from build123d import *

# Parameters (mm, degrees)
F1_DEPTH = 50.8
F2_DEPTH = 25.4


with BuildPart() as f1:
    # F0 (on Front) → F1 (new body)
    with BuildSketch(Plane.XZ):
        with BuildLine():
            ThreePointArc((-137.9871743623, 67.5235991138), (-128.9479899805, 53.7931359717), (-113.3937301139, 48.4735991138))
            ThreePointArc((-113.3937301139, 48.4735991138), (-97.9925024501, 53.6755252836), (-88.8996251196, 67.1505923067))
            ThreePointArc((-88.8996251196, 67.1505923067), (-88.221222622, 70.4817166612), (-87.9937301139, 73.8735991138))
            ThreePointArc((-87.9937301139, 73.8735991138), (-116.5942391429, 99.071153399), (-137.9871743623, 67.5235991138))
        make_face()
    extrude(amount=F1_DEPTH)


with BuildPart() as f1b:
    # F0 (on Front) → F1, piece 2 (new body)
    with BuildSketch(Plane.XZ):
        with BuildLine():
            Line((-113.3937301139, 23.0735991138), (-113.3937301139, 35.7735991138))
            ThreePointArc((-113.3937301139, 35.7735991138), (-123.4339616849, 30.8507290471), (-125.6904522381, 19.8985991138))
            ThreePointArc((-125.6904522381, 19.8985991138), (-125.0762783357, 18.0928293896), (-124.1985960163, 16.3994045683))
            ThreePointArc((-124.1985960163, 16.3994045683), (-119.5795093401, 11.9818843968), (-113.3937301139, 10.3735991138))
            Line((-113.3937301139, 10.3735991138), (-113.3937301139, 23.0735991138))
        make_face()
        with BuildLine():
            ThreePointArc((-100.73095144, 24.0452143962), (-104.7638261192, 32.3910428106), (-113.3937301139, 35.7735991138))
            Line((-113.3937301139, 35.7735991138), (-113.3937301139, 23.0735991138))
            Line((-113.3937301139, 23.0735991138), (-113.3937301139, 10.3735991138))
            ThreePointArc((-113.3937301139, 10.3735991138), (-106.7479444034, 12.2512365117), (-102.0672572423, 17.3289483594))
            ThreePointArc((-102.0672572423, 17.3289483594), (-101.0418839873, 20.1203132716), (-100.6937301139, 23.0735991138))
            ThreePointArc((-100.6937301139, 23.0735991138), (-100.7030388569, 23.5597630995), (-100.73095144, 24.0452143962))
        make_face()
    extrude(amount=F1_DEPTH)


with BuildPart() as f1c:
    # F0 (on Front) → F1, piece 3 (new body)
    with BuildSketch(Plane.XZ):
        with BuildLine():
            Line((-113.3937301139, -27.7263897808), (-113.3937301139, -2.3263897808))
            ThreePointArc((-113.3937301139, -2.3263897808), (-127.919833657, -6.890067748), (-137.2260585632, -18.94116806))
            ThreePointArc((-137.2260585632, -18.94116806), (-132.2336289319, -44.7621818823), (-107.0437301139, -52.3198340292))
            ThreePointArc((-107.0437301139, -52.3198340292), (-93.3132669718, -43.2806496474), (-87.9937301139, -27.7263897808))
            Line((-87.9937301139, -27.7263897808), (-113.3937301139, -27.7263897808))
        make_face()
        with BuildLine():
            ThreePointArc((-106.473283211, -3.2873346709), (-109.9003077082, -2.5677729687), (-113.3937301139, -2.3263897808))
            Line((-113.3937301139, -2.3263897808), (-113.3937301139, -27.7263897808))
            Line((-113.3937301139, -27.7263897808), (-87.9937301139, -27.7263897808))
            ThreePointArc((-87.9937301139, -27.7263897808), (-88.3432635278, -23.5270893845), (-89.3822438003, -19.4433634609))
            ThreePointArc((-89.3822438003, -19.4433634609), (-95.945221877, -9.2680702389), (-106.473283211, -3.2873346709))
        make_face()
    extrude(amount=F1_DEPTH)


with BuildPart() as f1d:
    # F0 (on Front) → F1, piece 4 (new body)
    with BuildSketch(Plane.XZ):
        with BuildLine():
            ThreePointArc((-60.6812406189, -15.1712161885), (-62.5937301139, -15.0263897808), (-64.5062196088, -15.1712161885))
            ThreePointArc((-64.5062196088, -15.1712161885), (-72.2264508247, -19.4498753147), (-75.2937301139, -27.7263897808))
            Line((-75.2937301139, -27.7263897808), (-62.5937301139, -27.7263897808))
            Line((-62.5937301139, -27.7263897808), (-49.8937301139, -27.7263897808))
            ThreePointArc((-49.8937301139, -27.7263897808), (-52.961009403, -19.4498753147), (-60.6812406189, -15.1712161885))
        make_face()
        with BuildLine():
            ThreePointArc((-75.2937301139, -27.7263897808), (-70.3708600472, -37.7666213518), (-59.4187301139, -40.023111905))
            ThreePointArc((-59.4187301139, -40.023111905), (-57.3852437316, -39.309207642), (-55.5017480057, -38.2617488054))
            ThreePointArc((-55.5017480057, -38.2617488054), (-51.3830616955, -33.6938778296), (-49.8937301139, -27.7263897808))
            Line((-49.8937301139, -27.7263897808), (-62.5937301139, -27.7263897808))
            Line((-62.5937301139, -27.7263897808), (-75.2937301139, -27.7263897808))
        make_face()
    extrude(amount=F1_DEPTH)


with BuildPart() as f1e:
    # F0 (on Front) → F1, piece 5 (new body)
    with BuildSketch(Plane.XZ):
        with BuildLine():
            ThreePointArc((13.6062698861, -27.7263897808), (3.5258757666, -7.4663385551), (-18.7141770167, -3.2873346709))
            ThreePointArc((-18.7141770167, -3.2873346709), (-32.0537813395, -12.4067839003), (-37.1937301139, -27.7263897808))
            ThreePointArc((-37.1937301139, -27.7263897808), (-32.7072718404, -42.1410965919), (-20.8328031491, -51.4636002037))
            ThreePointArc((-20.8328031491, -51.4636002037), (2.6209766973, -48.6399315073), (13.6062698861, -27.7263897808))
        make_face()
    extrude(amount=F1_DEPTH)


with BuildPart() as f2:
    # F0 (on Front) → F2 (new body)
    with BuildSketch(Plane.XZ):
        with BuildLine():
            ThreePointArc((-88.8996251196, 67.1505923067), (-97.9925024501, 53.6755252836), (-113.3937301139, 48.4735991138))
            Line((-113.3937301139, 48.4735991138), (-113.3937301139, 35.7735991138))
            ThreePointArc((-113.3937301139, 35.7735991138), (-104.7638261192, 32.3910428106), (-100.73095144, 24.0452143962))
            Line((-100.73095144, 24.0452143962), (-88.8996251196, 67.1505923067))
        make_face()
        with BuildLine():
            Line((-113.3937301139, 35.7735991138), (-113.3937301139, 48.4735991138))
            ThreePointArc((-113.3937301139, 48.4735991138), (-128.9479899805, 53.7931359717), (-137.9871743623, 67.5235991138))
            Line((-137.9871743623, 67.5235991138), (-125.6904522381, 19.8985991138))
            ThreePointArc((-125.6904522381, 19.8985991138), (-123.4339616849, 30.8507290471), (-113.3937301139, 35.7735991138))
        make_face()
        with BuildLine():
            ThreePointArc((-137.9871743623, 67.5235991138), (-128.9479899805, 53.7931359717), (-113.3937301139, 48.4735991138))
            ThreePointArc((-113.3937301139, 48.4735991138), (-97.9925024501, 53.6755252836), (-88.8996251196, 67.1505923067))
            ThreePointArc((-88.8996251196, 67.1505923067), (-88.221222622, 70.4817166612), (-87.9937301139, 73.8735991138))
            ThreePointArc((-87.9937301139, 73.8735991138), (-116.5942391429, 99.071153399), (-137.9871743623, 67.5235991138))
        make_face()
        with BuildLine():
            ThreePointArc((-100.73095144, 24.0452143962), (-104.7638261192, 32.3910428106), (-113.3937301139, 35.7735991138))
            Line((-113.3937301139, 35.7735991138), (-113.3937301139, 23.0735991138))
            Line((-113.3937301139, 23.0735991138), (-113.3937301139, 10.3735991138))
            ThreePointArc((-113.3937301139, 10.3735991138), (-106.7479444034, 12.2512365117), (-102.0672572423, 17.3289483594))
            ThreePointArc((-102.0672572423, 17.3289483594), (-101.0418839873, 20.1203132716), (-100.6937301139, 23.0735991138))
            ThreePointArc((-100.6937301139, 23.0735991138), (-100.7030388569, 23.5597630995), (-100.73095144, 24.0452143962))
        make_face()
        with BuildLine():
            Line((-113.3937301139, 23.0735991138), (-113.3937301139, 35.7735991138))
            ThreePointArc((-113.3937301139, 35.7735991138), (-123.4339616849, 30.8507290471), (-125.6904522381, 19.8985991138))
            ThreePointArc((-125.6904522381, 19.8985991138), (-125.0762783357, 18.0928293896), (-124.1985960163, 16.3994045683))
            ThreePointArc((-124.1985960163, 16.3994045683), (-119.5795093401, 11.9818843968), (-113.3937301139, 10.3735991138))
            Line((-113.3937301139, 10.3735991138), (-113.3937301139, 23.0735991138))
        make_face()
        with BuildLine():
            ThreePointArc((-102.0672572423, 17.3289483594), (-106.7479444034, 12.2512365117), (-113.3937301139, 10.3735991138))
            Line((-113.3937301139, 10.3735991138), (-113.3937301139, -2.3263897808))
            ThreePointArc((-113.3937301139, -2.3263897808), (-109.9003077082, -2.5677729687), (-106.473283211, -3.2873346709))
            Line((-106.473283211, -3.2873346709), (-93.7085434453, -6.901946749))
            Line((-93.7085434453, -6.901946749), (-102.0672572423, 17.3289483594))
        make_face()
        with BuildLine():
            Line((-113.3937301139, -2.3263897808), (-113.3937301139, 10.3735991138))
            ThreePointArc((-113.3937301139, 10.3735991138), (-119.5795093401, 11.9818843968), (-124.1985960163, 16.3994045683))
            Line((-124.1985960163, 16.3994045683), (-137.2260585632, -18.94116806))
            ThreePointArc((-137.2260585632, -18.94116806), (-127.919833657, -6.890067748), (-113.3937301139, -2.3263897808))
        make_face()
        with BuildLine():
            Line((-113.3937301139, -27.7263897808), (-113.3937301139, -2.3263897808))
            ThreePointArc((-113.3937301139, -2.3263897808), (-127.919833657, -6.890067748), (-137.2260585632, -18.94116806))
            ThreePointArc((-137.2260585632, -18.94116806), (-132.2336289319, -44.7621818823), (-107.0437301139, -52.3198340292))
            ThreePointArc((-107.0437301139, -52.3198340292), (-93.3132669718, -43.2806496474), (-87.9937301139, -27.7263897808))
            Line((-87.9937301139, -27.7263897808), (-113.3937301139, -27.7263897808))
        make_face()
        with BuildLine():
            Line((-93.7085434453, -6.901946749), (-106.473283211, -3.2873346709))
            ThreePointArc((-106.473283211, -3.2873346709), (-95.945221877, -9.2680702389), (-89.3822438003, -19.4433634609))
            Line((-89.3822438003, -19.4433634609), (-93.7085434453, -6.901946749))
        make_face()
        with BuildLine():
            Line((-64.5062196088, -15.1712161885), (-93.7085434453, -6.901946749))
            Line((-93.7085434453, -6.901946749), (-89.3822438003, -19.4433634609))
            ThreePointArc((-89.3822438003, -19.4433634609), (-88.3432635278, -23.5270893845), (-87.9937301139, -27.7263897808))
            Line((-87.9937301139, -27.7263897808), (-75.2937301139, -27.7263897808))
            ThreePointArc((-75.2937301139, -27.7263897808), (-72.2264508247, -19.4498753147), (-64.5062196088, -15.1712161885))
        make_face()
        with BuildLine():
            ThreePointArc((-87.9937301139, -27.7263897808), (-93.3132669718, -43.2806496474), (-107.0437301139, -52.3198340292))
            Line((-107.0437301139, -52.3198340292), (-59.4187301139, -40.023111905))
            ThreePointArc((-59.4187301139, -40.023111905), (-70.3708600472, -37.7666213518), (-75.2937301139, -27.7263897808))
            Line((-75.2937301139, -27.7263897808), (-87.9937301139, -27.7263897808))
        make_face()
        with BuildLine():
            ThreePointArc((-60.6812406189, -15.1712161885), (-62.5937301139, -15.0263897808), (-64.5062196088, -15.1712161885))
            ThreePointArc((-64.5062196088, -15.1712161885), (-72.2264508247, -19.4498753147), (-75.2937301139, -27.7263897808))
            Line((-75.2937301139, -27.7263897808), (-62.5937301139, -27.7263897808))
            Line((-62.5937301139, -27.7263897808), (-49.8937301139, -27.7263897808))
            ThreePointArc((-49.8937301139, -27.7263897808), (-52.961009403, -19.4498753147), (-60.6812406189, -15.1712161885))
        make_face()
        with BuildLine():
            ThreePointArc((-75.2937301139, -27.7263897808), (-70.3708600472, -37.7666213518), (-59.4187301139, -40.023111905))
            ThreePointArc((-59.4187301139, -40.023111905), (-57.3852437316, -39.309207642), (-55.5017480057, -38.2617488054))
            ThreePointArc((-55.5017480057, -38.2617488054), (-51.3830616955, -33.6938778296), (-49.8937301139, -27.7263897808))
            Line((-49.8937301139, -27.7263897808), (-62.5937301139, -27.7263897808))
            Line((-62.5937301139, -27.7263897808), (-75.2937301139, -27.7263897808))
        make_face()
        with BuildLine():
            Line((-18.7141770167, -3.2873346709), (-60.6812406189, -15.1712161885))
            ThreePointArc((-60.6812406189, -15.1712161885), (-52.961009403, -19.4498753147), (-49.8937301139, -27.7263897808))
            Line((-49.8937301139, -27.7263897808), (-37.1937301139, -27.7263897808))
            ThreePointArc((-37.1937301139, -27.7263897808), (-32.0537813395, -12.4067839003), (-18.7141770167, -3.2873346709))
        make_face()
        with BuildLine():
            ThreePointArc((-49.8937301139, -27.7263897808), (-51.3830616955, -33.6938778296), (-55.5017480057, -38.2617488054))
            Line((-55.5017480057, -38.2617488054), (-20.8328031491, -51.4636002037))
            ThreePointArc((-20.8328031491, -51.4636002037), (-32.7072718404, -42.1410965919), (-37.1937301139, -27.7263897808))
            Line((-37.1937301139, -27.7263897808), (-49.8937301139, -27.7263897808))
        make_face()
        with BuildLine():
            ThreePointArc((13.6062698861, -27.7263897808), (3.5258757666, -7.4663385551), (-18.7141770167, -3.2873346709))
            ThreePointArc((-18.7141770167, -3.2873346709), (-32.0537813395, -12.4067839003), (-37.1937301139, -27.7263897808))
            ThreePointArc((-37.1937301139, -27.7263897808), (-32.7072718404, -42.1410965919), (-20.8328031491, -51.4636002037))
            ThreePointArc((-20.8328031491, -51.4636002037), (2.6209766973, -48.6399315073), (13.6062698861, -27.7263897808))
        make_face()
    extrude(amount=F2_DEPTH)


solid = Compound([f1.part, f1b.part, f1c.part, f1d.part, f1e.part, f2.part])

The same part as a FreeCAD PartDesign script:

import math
import FreeCAD as App
import Part
import Sketcher
from FreeCAD import Vector
Q = App.Units.Quantity

doc = App.newDocument("Part")
body = doc.addObject("PartDesign::Body", "Body")

# Sketch on XZ plane
sketch1 = body.newObject("Sketcher::SketchObject", "Sketch")
sketch1.AttachmentSupport = (doc.getObject("XZ_Plane"), [""])
sketch1.MapMode = "FlatFace"
sketch1.addGeometry([
    Part.ArcOfCircle(Part.Circle(Vector(-113.39373, 73.873599, 0), Vector(0, 0, 1), 25.4), math.radians(-90), math.radians(-15.348255)),
    Part.ArcOfCircle(Part.Circle(Vector(-113.39373, 73.873599, 0), Vector(0, 0, 1), 25.4), math.radians(-15.348255), math.radians(0)),
    Part.ArcOfCircle(Part.Circle(Vector(-113.39373, 73.873599, 0), Vector(0, 0, 1), 25.4), math.radians(0), math.radians(270)),
], False)
sketch1.addConstraint([
    Sketcher.Constraint("Tangent", 0, 2, 1, 1),
    Sketcher.Constraint("Tangent", 1, 2, 2, 1),
    Sketcher.Constraint("Tangent", 2, 2, 0, 1),
    Sketcher.Constraint("Horizontal", 2, 3, 1, 2),
    Sketcher.Constraint("Vertical", 1, 3, 2, 2),
    Sketcher.Constraint("Radius", 0, Q("1 in")),
    Sketcher.Constraint("DistanceY", -1, 1, 0, 3, Q("73.873599 mm")),
    Sketcher.Constraint("DistanceX", 0, 3, -1, 1, Q("113.39373 mm")),
    Sketcher.Constraint("DistanceX", 0, 2, -1, 1, Q("88.899625 mm")),
])
pad1 = body.newObject("PartDesign::Pad", "Pad")
pad1.Profile = sketch1
pad1.Length = Q("2 in")
body2 = doc.addObject("PartDesign::Body", "Body001")

# Sketch on XZ plane
sketch2 = body2.newObject("Sketcher::SketchObject", "Sketch001")
sketch2.AttachmentSupport = (doc.getObject("XZ_Plane001"), [""])
sketch2.MapMode = "FlatFace"
sketch2.addGeometry([
    Part.ArcOfCircle(Part.Circle(Vector(-113.39373, 23.073599, 0), Vector(0, 0, 1), 12.7), math.radians(90), math.radians(194.477512)),  # 0
    Part.ArcOfCircle(Part.Circle(Vector(-113.39373, 23.073599, 0), Vector(0, 0, 1), 12.7), math.radians(-165.522488), math.radians(-148.296264)),  # 1
    Part.ArcOfCircle(Part.Circle(Vector(-113.39373, 23.073599, 0), Vector(0, 0, 1), 12.7), math.radians(-148.296264), math.radians(-90)),  # 2
    Part.ArcOfCircle(Part.Circle(Vector(-113.39373, 23.073599, 0), Vector(0, 0, 1), 12.7), math.radians(-90), math.radians(-26.893575)),  # 3
    Part.ArcOfCircle(Part.Circle(Vector(-113.39373, 23.073599, 0), Vector(0, 0, 1), 12.7), math.radians(-26.893575), math.radians(0)),  # 4
    Part.ArcOfCircle(Part.Circle(Vector(-113.39373, 23.073599, 0), Vector(0, 0, 1), 12.7), math.radians(0), math.radians(4.387709)),  # 5
    Part.ArcOfCircle(Part.Circle(Vector(-113.39373, 23.073599, 0), Vector(0, 0, 1), 12.7), math.radians(4.387709), math.radians(90)),  # 6
], False)
sketch2.addConstraint([
    Sketcher.Constraint("Tangent", 0, 2, 1, 1),
    Sketcher.Constraint("Tangent", 1, 2, 2, 1),
    Sketcher.Constraint("Tangent", 2, 2, 3, 1),
    Sketcher.Constraint("Tangent", 3, 2, 4, 1),
    Sketcher.Constraint("Tangent", 4, 2, 5, 1),
    Sketcher.Constraint("Tangent", 5, 2, 6, 1),
    Sketcher.Constraint("Tangent", 6, 2, 0, 1),
    Sketcher.Constraint("Coincident", 2, 3, 0, 3),
    Sketcher.Constraint("Coincident", 4, 3, 0, 3),
    Sketcher.Constraint("Horizontal", 6, 3, 4, 2),
    Sketcher.Constraint("Vertical", 6, 3, 2, 2),
    Sketcher.Constraint("Vertical", 2, 2, 6, 2),
    Sketcher.Constraint("Radius", 0, Q("0.5 in")),
    Sketcher.Constraint("DistanceY", 0, 2, 1, 3, Q("0.125 in")),
    Sketcher.Constraint("DistanceY", -1, 1, 0, 3, Q("23.073599 mm")),
    Sketcher.Constraint("DistanceX", 0, 3, -1, 1, Q("113.39373 mm")),
    Sketcher.Constraint("DistanceY", -1, 1, 3, 2, Q("17.328948 mm")),
    Sketcher.Constraint("DistanceX", 5, 2, -1, 1, Q("100.730951 mm")),
    Sketcher.Constraint("DistanceX", 1, 2, -1, 1, Q("124.198596 mm")),
])
pad2 = body2.newObject("PartDesign::Pad", "Pad001")
pad2.Profile = sketch2
pad2.Length = Q("2 in")
body3 = doc.addObject("PartDesign::Body", "Body002")

# Sketch on XZ plane
sketch3 = body3.newObject("Sketcher::SketchObject", "Sketch002")
sketch3.AttachmentSupport = (doc.getObject("XZ_Plane002"), [""])
sketch3.MapMode = "FlatFace"
sketch3.addGeometry([
    Part.ArcOfCircle(Part.Circle(Vector(-113.39373, -27.72639, 0), Vector(0, 0, 1), 25.4), math.radians(90), math.radians(284.477512)),  # 0
    Part.ArcOfCircle(Part.Circle(Vector(-113.39373, -27.72639, 0), Vector(0, 0, 1), 25.4), math.radians(-75.522488), math.radians(0)),  # 1
    Part.ArcOfCircle(Part.Circle(Vector(-113.39373, -27.72639, 0), Vector(0, 0, 1), 25.4), math.radians(0), math.radians(19.032437)),  # 2
    Part.ArcOfCircle(Part.Circle(Vector(-113.39373, -27.72639, 0), Vector(0, 0, 1), 25.4), math.radians(19.032437), math.radians(74.189383)),  # 3
    Part.ArcOfCircle(Part.Circle(Vector(-113.39373, -27.72639, 0), Vector(0, 0, 1), 25.4), math.radians(74.189383), math.radians(90)),  # 4
], False)
sketch3.addConstraint([
    Sketcher.Constraint("Tangent", 0, 2, 1, 1),
    Sketcher.Constraint("Tangent", 1, 2, 2, 1),
    Sketcher.Constraint("Tangent", 2, 2, 3, 1),
    Sketcher.Constraint("Tangent", 3, 2, 4, 1),
    Sketcher.Constraint("Tangent", 4, 2, 0, 1),
    Sketcher.Constraint("Coincident", 2, 3, 0, 3),
    Sketcher.Constraint("Horizontal", 4, 3, 1, 2),
    Sketcher.Constraint("Vertical", 3, 3, 4, 2),
    Sketcher.Constraint("Radius", 0, Q("1 in")),
    Sketcher.Constraint("DistanceX", 0, 3, 0, 2, Q("0.25 in")),
    Sketcher.Constraint("DistanceX", 0, 3, -1, 1, Q("113.39373 mm")),
    Sketcher.Constraint("DistanceY", 0, 3, -1, 1, Q("27.72639 mm")),
    Sketcher.Constraint("DistanceX", 3, 2, 2, 2, Q("17.091039 mm")),
    Sketcher.Constraint("DistanceY", 2, 2, 3, 2, Q("16.156029 mm")),
])
pad3 = body3.newObject("PartDesign::Pad", "Pad002")
pad3.Profile = sketch3
pad3.Length = Q("2 in")
body4 = doc.addObject("PartDesign::Body", "Body003")

# Sketch on XZ plane
sketch4 = body4.newObject("Sketcher::SketchObject", "Sketch003")
sketch4.AttachmentSupport = (doc.getObject("XZ_Plane003"), [""])
sketch4.MapMode = "FlatFace"
sketch4.addGeometry([
    Part.ArcOfCircle(Part.Circle(Vector(-62.59373, -27.72639, 0), Vector(0, 0, 1), 12.7), math.radians(81.338897), math.radians(98.661103)),  # 0
    Part.ArcOfCircle(Part.Circle(Vector(-62.59373, -27.72639, 0), Vector(0, 0, 1), 12.7), math.radians(98.661103), math.radians(180)),  # 1
    Part.ArcOfCircle(Part.Circle(Vector(-62.59373, -27.72639, 0), Vector(0, 0, 1), 12.7), math.radians(180), math.radians(284.477512)),  # 2
    Part.ArcOfCircle(Part.Circle(Vector(-62.59373, -27.72639, 0), Vector(0, 0, 1), 12.7), math.radians(-75.522488), math.radians(-56.053138)),  # 3
    Part.ArcOfCircle(Part.Circle(Vector(-62.59373, -27.72639, 0), Vector(0, 0, 1), 12.7), math.radians(-56.053138), math.radians(0)),  # 4
    Part.ArcOfCircle(Part.Circle(Vector(-62.59373, -27.72639, 0), Vector(0, 0, 1), 12.7), math.radians(0), math.radians(81.338897)),  # 5
], False)
sketch4.addConstraint([
    Sketcher.Constraint("Tangent", 0, 2, 1, 1),
    Sketcher.Constraint("Tangent", 1, 2, 2, 1),
    Sketcher.Constraint("Tangent", 2, 2, 3, 1),
    Sketcher.Constraint("Tangent", 3, 2, 4, 1),
    Sketcher.Constraint("Tangent", 4, 2, 5, 1),
    Sketcher.Constraint("Tangent", 5, 2, 0, 1),
    Sketcher.Constraint("Coincident", 2, 3, 0, 3),
    Sketcher.Constraint("Equal", 2, 3),
    Sketcher.Constraint("Horizontal", 5, 3, 1, 2),
    Sketcher.Constraint("Horizontal", 1, 2, 4, 2),
    Sketcher.Constraint("Horizontal", 0, 2, 5, 2),
    Sketcher.Constraint("Radius", 0, Q("0.5 in")),
    Sketcher.Constraint("DistanceX", 0, 3, 2, 2, Q("0.125 in")),
    Sketcher.Constraint("DistanceX", 0, 3, -1, 1, Q("62.59373 mm")),
    Sketcher.Constraint("DistanceY", 0, 3, -1, 1, Q("27.72639 mm")),
    Sketcher.Constraint("DistanceX", 0, 2, -1, 1, Q("64.50622 mm")),
    Sketcher.Constraint("DistanceX", 3, 2, -1, 1, Q("55.501748 mm")),
])
pad4 = body4.newObject("PartDesign::Pad", "Pad003")
pad4.Profile = sketch4
pad4.Length = Q("2 in")
body5 = doc.addObject("PartDesign::Body", "Body004")

# Sketch on XZ plane
sketch5 = body5.newObject("Sketcher::SketchObject", "Sketch004")
sketch5.AttachmentSupport = (doc.getObject("XZ_Plane004"), [""])
sketch5.MapMode = "FlatFace"
sketch5.addGeometry([
    Part.ArcOfCircle(Part.Circle(Vector(-11.79373, -27.72639, 0), Vector(0, 0, 1), 25.4), math.radians(0), math.radians(180)),
    Part.ArcOfCircle(Part.Circle(Vector(-11.79373, -27.72639, 0), Vector(0, 0, 1), 25.4), math.radians(180), math.radians(249.153286)),
    Part.ArcOfCircle(Part.Circle(Vector(-11.79373, -27.72639, 0), Vector(0, 0, 1), 25.4), math.radians(-110.846714), math.radians(0)),
], False)
sketch5.addConstraint([
    Sketcher.Constraint("Tangent", 0, 2, 1, 1),
    Sketcher.Constraint("Tangent", 1, 2, 2, 1),
    Sketcher.Constraint("Tangent", 2, 2, 0, 1),
    Sketcher.Constraint("Horizontal", 2, 3, 0, 2),
    Sketcher.Constraint("Horizontal", 0, 2, 2, 2),
    Sketcher.Constraint("Radius", 0, Q("1 in")),
    Sketcher.Constraint("DistanceY", 1, 2, -1, 1, Q("51.4636 mm")),
    Sketcher.Constraint("DistanceX", 0, 3, -1, 1, Q("11.79373 mm")),
    Sketcher.Constraint("DistanceY", 0, 3, -1, 1, Q("27.72639 mm")),
])
pad5 = body5.newObject("PartDesign::Pad", "Pad004")
pad5.Profile = sketch5
pad5.Length = Q("2 in")
body6 = doc.addObject("PartDesign::Body", "Body005")

# Sketch on XZ plane
sketch6 = body6.newObject("Sketcher::SketchObject", "Sketch005")
sketch6.AttachmentSupport = (doc.getObject("XZ_Plane005"), [""])
sketch6.MapMode = "FlatFace"
sketch6.addGeometry([
    Part.ArcOfCircle(Part.Circle(Vector(-113.39373, -27.72639, 0), Vector(0, 0, 1), 25.4), math.radians(159.76479), math.radians(284.477512)),  # 0
    Part.LineSegment(Vector(-107.04373, -52.319834, 0), Vector(-59.41873, -40.023112, 0)),  # 1
    Part.ArcOfCircle(Part.Circle(Vector(-62.59373, -27.72639, 0), Vector(0, 0, 1), 12.7), math.radians(-75.522488), math.radians(-56.053138)),  # 2
    Part.LineSegment(Vector(-55.501748, -38.261749, 0), Vector(-20.832803, -51.4636, 0)),  # 3
    Part.ArcOfCircle(Part.Circle(Vector(-11.79373, -27.72639, 0), Vector(0, 0, 1), 25.4), math.radians(-110.846714), math.radians(0)),  # 4
    Part.ArcOfCircle(Part.Circle(Vector(-11.79373, -27.72639, 0), Vector(0, 0, 1), 25.4), math.radians(0), math.radians(105.810617)),  # 5
    Part.LineSegment(Vector(-18.714177, -3.287335, 0), Vector(-60.681241, -15.171216, 0)),  # 6
    Part.ArcOfCircle(Part.Circle(Vector(-62.59373, -27.72639, 0), Vector(0, 0, 1), 12.7), math.radians(81.338897), math.radians(98.661103)),  # 7
    Part.LineSegment(Vector(-64.50622, -15.171216, 0), Vector(-93.708543, -6.901947, 0)),  # 8
    Part.LineSegment(Vector(-93.708543, -6.901947, 0), Vector(-102.067257, 17.328948, 0)),  # 9
    Part.ArcOfCircle(Part.Circle(Vector(-113.39373, 23.073599, 0), Vector(0, 0, 1), 12.7), math.radians(-26.893575), math.radians(0)),  # 10
    Part.ArcOfCircle(Part.Circle(Vector(-113.39373, 23.073599, 0), Vector(0, 0, 1), 12.7), math.radians(0), math.radians(4.387709)),  # 11
    Part.LineSegment(Vector(-100.730951, 24.045214, 0), Vector(-88.899625, 67.150592, 0)),  # 12
    Part.ArcOfCircle(Part.Circle(Vector(-113.39373, 73.873599, 0), Vector(0, 0, 1), 25.4), math.radians(-15.348255), math.radians(0)),  # 13
    Part.ArcOfCircle(Part.Circle(Vector(-113.39373, 73.873599, 0), Vector(0, 0, 1), 25.4), math.radians(0), math.radians(194.477512)),  # 14
    Part.LineSegment(Vector(-137.987174, 67.523599, 0), Vector(-125.690452, 19.898599, 0)),  # 15
    Part.ArcOfCircle(Part.Circle(Vector(-113.39373, 23.073599, 0), Vector(0, 0, 1), 12.7), math.radians(-165.522488), math.radians(-148.296264)),  # 16
    Part.LineSegment(Vector(-124.198596, 16.399405, 0), Vector(-137.226059, -18.941168, 0)),  # 17
    Part.ArcOfCircle(Part.Circle(Vector(-113.39373, -27.72639, 0), Vector(0, 0, 1), 25.4), math.radians(0), math.radians(19.032437)),  # 18
    Part.LineSegment(Vector(-87.99373, -27.72639, 0), Vector(-113.39373, -27.72639, 0)),  # 19
    Part.LineSegment(Vector(-113.39373, -27.72639, 0), Vector(-113.39373, -2.32639, 0)),  # 20
    Part.ArcOfCircle(Part.Circle(Vector(-113.39373, -27.72639, 0), Vector(0, 0, 1), 25.4), math.radians(74.189383), math.radians(90)),  # 21
    Part.ArcOfCircle(Part.Circle(Vector(-113.39373, -27.72639, 0), Vector(0, 0, 1), 25.4), math.radians(19.032437), math.radians(74.189383)),  # 22
], False)
sketch6.addConstraint([
    Sketcher.Constraint("Tangent", 0, 2, 1, 1),
    Sketcher.Constraint("Tangent", 1, 2, 2, 1),
    Sketcher.Constraint("Coincident", 2, 2, 3, 1),
    Sketcher.Constraint("Tangent", 3, 2, 4, 1),
    Sketcher.Constraint("Tangent", 4, 2, 5, 1),
    Sketcher.Constraint("Tangent", 5, 2, 6, 1),
    Sketcher.Constraint("Coincident", 6, 2, 7, 1),
    Sketcher.Constraint("Coincident", 7, 2, 8, 1),
    Sketcher.Constraint("Coincident", 8, 2, 9, 1),
    Sketcher.Constraint("Coincident", 9, 2, 10, 1),
    Sketcher.Constraint("Tangent", 10, 2, 11, 1),
    Sketcher.Constraint("Coincident", 11, 2, 12, 1),
    Sketcher.Constraint("Tangent", 12, 2, 13, 1),
    Sketcher.Constraint("Tangent", 13, 2, 14, 1),
    Sketcher.Constraint("Tangent", 14, 2, 15, 1),
    Sketcher.Constraint("Tangent", 15, 2, 16, 1),
    Sketcher.Constraint("Coincident", 16, 2, 17, 1),
    Sketcher.Constraint("Tangent", 17, 2, 0, 1),
    Sketcher.Constraint("Coincident", 18, 1, 19, 1),
    Sketcher.Constraint("Coincident", 19, 2, 20, 1),
    Sketcher.Constraint("Coincident", 20, 2, 21, 2),
    Sketcher.Constraint("Tangent", 21, 1, 22, 2),
    Sketcher.Constraint("Tangent", 22, 1, 18, 2),
    Sketcher.Constraint("Horizontal", 19),
    Sketcher.Constraint("Vertical", 20),
    Sketcher.Constraint("Coincident", 7, 3, 2, 3),
    Sketcher.Constraint("Coincident", 16, 3, 10, 3),
    Sketcher.Constraint("Coincident", 18, 3, 0, 3),
    Sketcher.Constraint("Coincident", 21, 3, 0, 3),
    Sketcher.Constraint("Coincident", 19, 2, 0, 3),
    Sketcher.Constraint("Equal", 0, 4),
    Sketcher.Constraint("Equal", 4, 5),
    Sketcher.Constraint("Equal", 2, 7),
    Sketcher.Constraint("Equal", 7, 10),
    Sketcher.Constraint("Equal", 10, 11),
    Sketcher.Constraint("Equal", 5, 13),
    Sketcher.Constraint("Equal", 13, 14),
    Sketcher.Constraint("Equal", 11, 16),
    Sketcher.Constraint("Equal", 14, 18),
    Sketcher.Constraint("Perpendicular", 1, 15),
    Sketcher.Constraint("Horizontal", 0, 3, 2, 3),
    Sketcher.Constraint("Horizontal", 2, 3, 4, 3),
    Sketcher.Constraint("Horizontal", 22, 3, 4, 2),
    Sketcher.Constraint("Horizontal", 6, 2, 7, 2),
    Sketcher.Constraint("Horizontal", 16, 3, 10, 2),
    Sketcher.Constraint("Horizontal", 14, 3, 13, 2),
    Sketcher.Constraint("Horizontal", 5, 2, 21, 1),
    Sketcher.Constraint("Vertical", 0, 3, 10, 3),
    Sketcher.Constraint("Vertical", 11, 3, 13, 3),
    Sketcher.Constraint("Radius", 0, Q("1 in")),
    Sketcher.Constraint("Radius", 2, Q("0.5 in")),
    Sketcher.Constraint("DistanceX", 0, 3, 2, 3, Q("2 in")),
    Sketcher.Constraint("DistanceX", 2, 3, 4, 3, Q("2 in")),
    Sketcher.Constraint("Distance", 3, Q("37.097502 mm")),
    Sketcher.Constraint("DistanceY", -1, 1, 10, 3, Q("23.073599 mm")),
    Sketcher.Constraint("DistanceY", 3, 2, -1, 1, Q("51.4636 mm")),
    Sketcher.Constraint("DistanceX", 8, 2, 22, 1, Q("4.3263 mm")),
    Sketcher.Constraint("Distance", 6, Q("43.617211 mm")),
    Sketcher.Constraint("Distance", 8, Q("30.350561 mm")),
    Sketcher.Constraint("DistanceX", 0, 3, -1, 1, Q("113.39373 mm")),
    Sketcher.Constraint("DistanceY", -1, 1, 9, 2, Q("17.328948 mm")),
    Sketcher.Constraint("DistanceX", 11, 2, -1, 1, Q("100.730951 mm")),
    Sketcher.Constraint("DistanceX", 17, 2, -1, 1, Q("137.226059 mm")),
    Sketcher.Constraint("DistanceY", 7, 2, 8, 2, Q("8.269269 mm")),
])
pad6 = body6.newObject("PartDesign::Pad", "Pad005")
pad6.Profile = sketch6
pad6.Length = Q("1 in")

doc.recompute()
